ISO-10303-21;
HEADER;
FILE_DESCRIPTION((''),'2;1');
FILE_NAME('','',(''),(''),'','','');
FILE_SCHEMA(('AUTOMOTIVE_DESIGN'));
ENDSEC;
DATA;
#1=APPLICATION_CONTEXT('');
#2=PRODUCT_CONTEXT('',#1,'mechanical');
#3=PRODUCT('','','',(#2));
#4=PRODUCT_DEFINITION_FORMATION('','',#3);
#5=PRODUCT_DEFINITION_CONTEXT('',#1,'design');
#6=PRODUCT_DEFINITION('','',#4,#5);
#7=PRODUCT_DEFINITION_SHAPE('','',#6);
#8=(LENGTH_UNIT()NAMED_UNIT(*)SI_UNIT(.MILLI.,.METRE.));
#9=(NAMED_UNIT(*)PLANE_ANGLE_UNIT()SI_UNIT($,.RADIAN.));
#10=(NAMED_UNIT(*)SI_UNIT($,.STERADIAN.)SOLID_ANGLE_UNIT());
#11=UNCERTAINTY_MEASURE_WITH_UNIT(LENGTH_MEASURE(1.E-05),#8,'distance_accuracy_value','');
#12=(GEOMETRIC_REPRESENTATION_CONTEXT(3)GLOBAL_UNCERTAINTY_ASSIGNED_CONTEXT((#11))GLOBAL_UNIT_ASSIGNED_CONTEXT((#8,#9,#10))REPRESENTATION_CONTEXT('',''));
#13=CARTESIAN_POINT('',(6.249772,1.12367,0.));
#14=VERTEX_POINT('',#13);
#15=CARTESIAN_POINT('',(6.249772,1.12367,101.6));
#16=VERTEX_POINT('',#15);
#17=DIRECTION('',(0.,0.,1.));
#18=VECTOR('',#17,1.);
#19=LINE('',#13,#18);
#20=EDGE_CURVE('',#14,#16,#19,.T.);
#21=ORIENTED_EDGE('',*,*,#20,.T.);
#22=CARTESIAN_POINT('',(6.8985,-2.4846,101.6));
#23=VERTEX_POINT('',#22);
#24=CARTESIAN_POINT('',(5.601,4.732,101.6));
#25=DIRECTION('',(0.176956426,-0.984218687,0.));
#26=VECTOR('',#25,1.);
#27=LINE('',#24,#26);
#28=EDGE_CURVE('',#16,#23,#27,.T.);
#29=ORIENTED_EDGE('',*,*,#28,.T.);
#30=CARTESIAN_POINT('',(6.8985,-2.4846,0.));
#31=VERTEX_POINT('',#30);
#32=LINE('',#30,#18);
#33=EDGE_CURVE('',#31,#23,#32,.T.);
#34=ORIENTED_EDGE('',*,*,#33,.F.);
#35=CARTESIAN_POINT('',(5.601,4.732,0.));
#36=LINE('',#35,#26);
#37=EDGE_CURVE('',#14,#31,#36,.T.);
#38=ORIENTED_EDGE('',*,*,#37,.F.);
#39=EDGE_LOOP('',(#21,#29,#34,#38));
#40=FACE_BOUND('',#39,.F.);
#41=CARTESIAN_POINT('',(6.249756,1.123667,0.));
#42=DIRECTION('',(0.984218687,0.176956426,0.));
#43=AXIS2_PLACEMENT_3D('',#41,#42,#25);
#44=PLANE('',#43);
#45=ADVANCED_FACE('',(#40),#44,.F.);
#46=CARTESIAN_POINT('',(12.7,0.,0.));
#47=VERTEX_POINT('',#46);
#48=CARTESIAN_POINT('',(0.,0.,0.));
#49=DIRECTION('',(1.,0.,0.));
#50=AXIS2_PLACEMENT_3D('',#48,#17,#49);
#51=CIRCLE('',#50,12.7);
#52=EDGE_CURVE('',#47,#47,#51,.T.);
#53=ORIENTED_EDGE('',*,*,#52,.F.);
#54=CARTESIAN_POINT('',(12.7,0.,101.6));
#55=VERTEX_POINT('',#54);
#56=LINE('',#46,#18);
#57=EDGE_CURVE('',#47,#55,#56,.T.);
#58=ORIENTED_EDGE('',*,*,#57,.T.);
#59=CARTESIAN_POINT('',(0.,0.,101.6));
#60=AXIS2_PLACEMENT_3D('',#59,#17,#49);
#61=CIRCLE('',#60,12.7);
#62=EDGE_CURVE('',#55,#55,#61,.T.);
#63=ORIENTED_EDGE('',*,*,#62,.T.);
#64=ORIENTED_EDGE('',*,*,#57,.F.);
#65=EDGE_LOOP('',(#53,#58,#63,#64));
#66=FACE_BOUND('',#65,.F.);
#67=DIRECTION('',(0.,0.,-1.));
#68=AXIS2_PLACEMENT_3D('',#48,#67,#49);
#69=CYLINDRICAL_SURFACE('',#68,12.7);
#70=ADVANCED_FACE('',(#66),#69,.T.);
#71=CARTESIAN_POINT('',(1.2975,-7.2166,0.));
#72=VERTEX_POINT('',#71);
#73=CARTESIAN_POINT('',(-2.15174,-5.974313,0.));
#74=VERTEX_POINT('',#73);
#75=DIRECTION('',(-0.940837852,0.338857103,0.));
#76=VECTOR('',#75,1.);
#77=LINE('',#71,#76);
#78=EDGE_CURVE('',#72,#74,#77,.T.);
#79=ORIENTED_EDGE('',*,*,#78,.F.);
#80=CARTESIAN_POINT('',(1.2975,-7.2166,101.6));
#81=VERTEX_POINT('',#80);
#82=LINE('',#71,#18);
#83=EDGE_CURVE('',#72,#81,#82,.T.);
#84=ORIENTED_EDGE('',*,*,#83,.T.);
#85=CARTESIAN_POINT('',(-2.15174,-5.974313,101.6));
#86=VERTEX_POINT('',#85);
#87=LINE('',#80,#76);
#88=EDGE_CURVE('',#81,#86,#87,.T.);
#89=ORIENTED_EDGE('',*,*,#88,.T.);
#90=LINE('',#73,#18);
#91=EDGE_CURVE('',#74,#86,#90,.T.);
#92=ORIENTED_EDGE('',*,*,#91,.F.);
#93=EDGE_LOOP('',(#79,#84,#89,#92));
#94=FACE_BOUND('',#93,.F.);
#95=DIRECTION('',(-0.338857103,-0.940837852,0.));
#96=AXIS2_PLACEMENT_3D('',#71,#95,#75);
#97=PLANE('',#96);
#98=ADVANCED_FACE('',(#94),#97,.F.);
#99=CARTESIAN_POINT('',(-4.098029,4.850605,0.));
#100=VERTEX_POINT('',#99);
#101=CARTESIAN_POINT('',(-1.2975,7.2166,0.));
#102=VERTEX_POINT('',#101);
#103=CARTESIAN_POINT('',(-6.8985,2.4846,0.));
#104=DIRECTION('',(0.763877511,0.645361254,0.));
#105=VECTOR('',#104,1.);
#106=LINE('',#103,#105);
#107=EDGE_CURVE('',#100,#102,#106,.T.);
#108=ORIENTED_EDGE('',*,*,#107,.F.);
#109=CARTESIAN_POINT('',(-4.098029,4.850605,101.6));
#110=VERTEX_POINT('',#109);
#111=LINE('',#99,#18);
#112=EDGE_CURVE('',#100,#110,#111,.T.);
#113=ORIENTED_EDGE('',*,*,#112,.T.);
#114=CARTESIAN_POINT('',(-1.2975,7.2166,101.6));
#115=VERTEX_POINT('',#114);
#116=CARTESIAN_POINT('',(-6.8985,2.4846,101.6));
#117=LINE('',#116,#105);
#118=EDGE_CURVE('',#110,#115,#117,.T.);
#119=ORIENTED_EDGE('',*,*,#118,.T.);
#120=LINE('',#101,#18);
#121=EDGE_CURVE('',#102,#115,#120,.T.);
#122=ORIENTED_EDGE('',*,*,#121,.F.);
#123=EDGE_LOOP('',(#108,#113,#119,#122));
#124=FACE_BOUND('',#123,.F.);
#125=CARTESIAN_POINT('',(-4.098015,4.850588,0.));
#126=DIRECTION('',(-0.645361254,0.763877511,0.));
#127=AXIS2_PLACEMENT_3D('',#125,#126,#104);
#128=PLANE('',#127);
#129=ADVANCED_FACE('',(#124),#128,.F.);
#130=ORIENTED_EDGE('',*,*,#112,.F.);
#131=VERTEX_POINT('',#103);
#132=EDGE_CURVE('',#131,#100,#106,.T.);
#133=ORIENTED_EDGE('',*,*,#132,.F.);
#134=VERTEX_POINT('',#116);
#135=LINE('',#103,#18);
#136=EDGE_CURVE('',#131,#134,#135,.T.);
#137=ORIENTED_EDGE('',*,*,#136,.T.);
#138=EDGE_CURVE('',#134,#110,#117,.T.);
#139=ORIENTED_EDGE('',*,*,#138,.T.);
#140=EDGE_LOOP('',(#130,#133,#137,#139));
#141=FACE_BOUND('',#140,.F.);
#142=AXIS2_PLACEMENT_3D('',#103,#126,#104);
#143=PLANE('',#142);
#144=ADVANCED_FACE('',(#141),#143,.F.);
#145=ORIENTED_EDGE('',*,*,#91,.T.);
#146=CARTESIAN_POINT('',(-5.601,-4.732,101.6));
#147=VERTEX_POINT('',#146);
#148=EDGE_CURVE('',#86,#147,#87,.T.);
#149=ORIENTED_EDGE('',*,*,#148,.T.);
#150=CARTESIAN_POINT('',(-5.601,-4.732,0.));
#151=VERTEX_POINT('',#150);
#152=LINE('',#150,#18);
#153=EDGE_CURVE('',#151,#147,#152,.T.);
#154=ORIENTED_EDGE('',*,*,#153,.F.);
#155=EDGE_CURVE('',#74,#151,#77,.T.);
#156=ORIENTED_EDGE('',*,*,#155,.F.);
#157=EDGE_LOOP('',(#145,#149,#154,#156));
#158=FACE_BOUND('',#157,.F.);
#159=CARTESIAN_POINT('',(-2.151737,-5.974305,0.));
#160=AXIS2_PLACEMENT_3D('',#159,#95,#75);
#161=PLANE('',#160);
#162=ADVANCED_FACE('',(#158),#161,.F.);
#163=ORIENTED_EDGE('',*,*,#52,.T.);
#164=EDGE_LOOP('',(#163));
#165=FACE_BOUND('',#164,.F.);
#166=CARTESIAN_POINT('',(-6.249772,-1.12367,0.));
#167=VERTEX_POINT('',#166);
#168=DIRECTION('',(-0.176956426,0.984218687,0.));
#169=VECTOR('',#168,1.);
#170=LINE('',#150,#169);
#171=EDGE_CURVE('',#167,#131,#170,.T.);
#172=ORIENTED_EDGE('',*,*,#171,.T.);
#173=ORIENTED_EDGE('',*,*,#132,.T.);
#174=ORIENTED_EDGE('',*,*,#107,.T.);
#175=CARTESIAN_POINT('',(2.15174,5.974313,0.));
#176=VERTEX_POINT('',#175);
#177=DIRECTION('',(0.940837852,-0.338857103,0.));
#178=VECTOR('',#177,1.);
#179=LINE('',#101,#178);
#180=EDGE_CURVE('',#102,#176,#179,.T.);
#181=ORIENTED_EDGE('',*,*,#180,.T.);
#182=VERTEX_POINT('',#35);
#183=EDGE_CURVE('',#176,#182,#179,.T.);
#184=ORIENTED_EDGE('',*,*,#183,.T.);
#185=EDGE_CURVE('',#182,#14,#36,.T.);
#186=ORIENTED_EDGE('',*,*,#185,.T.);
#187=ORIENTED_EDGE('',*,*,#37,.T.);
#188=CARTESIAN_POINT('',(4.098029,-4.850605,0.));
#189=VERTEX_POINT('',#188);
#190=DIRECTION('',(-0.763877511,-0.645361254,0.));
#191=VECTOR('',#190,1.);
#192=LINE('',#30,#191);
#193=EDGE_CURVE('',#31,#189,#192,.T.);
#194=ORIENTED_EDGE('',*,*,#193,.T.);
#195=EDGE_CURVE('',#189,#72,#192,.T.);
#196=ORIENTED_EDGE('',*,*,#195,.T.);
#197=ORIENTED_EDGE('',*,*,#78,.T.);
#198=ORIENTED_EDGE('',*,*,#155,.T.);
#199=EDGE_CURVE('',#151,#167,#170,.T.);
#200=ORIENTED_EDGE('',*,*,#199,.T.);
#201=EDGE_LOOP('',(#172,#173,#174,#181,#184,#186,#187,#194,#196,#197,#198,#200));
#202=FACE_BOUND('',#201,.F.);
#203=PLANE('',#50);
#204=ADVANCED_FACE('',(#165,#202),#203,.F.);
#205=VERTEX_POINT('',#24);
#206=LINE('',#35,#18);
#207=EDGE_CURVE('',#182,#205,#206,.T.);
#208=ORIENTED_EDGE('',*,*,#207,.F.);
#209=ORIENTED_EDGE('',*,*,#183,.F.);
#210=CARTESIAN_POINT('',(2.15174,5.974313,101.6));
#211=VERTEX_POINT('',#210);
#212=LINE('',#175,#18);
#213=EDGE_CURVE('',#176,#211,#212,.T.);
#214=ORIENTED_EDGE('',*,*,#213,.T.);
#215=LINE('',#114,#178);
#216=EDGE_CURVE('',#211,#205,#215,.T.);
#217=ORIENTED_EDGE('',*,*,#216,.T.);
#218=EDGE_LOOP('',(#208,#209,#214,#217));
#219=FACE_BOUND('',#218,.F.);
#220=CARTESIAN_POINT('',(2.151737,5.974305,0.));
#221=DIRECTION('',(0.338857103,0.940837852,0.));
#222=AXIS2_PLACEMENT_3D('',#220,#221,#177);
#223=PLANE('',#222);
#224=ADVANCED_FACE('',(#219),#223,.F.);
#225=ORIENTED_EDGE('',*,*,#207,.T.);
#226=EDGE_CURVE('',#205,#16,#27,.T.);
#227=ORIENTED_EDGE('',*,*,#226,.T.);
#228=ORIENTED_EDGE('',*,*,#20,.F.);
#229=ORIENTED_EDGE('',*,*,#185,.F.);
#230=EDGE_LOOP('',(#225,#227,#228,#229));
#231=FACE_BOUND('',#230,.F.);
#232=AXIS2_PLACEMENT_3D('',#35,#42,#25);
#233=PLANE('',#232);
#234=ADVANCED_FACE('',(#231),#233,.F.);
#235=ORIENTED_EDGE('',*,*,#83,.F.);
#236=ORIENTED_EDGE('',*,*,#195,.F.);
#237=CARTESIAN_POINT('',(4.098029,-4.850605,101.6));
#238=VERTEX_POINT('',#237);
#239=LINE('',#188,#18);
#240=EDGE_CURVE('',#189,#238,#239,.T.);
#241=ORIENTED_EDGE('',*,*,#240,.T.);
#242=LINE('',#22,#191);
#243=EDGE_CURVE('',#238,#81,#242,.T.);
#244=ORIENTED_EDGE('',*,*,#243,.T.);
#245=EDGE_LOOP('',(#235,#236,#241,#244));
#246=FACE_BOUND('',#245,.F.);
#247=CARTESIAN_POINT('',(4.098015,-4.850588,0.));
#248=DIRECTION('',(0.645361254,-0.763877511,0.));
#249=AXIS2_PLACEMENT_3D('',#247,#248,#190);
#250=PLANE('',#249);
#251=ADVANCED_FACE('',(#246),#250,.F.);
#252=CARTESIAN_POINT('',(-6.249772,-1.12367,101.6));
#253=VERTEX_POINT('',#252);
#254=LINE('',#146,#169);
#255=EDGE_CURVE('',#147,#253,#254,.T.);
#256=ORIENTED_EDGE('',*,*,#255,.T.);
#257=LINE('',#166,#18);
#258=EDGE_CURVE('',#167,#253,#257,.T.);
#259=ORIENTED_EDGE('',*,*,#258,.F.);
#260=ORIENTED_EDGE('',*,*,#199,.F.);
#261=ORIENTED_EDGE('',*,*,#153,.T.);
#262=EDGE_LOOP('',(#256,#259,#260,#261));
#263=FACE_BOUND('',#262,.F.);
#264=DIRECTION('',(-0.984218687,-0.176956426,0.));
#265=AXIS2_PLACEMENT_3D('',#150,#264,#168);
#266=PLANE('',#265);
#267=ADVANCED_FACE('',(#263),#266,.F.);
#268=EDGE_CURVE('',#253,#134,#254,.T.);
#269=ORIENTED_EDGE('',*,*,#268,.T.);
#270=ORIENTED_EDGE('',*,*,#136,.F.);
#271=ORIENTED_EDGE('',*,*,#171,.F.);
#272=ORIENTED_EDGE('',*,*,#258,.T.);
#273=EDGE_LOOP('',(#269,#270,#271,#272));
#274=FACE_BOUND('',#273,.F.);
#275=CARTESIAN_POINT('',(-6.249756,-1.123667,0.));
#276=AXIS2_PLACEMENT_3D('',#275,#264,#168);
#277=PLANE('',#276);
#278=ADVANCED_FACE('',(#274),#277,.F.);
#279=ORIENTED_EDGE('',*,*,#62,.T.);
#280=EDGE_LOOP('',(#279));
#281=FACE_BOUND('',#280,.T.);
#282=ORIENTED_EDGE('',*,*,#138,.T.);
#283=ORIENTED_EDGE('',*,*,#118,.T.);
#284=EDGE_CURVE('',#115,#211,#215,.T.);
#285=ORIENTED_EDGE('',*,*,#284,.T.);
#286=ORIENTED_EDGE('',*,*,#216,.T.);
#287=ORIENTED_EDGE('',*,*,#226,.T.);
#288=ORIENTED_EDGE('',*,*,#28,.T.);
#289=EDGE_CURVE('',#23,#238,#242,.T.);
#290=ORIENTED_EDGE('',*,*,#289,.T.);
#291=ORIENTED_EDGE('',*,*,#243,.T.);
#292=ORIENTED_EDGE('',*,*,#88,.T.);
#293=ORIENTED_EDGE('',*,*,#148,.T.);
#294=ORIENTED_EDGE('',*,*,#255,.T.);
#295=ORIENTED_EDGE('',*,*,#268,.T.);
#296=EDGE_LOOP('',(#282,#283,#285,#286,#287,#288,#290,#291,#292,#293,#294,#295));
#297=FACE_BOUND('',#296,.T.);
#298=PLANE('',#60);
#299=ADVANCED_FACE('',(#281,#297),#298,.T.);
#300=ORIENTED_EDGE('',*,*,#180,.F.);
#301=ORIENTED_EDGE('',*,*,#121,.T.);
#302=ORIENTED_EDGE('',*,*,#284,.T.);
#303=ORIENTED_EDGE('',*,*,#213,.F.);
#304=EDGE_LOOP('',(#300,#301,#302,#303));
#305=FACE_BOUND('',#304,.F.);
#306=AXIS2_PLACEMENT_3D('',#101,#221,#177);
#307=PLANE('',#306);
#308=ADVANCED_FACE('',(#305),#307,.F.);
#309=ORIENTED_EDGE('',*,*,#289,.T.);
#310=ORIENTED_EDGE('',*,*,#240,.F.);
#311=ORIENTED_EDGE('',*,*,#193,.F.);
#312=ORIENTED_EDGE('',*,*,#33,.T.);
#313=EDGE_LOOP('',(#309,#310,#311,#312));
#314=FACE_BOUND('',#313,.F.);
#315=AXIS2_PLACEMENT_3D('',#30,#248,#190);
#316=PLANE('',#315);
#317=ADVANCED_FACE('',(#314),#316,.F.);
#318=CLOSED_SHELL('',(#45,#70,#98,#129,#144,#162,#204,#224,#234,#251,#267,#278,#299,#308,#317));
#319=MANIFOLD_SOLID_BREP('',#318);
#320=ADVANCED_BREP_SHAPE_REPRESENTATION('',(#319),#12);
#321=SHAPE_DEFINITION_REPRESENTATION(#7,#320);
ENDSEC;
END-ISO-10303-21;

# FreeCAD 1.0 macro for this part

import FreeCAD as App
import Part
import Sketcher

V = App.Vector
Q = App.Units.Quantity


def add_polygon(sketch, points):
    """Adds a closed chain of lines whose ends are joined by coincident constraints."""
    first, n = sketch.GeometryCount, len(points)
    for a, b in zip(points, points[1:] + points[:1]):
        sketch.addGeometry(Part.LineSegment(App.Vector(*a, 0), App.Vector(*b, 0)), False)
    for i in range(n):
        sketch.addConstraint(Sketcher.Constraint("Coincident", first + i, 2, first + (i + 1) % n, 1))

doc = App.newDocument("Part")
params = doc.addObject("Spreadsheet::Sheet", "Params")
for row, (alias, value) in enumerate([
    ("sketch1_diameter", "1 in"),
    ("pad1_length", "4 in"),
], start=1):
    params.set(f"A{row}", alias)
    params.set(f"B{row}", "=" + value)
    params.setAlias(f"B{row}", alias)

body = doc.addObject("PartDesign::Body", "Body")

sketch1 = doc.addObject("Sketcher::SketchObject", "Sketch")
body.addObject(sketch1)
sketch1.AttachmentSupport = (doc.XY_Plane, [""])
sketch1.MapMode = "FlatFace"
sketch1.addGeometry(Part.Circle(V(0, 0, 0), V(0, 0, 1), 12.7), False)
add_polygon(sketch1, [(5.601, 4.732), (6.8985, -2.4846), (1.2975, -7.2166), (-5.601, -4.732), (-6.8985, 2.4846), (-1.2975, 7.2166)])
sketch1.addConstraint(Sketcher.Constraint("Coincident", 0, 3, -1, 1))
sketch1.addConstraint(Sketcher.Constraint("Diameter", 0, Q("1 in")))
sketch1.addConstraint(Sketcher.Constraint("DistanceX", -1, 1, 1, 2, Q("0.2716 in")))
sketch1.addConstraint(Sketcher.Constraint("DistanceX", 3, 2, -1, 1, Q("0.2205 in")))
sketch1.addConstraint(Sketcher.Constraint("DistanceY", 3, 2, -1, 1, Q("0.1863 in")))
sketch1.addConstraint(Sketcher.Constraint("DistanceX", 4, 2, -1, 1, Q("0.2716 in")))
sketch1.addConstraint(Sketcher.Constraint("DistanceX", -1, 1, 6, 2, Q("0.2205 in")))
sketch1.addConstraint(Sketcher.Constraint("DistanceY", -1, 1, 6, 2, Q("0.1863 in")))
sketch1.addConstraint(Sketcher.Constraint("DistanceX", 2, 2, 1, 2, Q("0.2205 in")))
sketch1.addConstraint(Sketcher.Constraint("DistanceY", 2, 2, 1, 2, Q("0.1863 in")))
sketch1.addConstraint(Sketcher.Constraint("DistanceX", 4, 2, 5, 2, Q("0.2205 in")))
sketch1.addConstraint(Sketcher.Constraint("DistanceY", 4, 2, 5, 2, Q("0.1863 in")))
sketch1.addConstraint(Sketcher.Constraint("Distance", 1, Q("7.3323 mm")))
sketch1.addConstraint(Sketcher.Constraint("Distance", 4, Q("7.3323 mm")))
sketch1.setExpression("Constraints[7]", "Params.sketch1_diameter")
pad1 = doc.addObject("PartDesign::Pad", "Pad")
body.addObject(pad1)
pad1.Profile = sketch1
pad1.setExpression("Length", "Params.pad1_length")

doc.recompute()
